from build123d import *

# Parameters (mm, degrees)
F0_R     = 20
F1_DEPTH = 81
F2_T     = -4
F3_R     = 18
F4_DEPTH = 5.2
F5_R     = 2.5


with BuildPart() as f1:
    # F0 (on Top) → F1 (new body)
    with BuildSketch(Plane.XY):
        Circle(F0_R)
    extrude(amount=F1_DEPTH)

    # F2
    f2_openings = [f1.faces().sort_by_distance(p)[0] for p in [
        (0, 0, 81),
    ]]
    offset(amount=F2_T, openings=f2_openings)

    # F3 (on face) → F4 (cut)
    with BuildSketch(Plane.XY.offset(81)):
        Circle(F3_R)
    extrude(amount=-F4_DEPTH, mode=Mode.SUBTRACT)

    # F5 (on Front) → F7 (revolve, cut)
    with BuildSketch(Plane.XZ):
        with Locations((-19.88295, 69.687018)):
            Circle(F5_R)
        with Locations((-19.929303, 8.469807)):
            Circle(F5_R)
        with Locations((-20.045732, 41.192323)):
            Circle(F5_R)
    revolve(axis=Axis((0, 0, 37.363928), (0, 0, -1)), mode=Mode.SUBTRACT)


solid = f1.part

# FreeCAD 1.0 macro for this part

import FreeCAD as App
import Part
import Sketcher
from FreeCAD import Vector


def faces_at(feature, points):
    """Names of the faces that lie closest to the given points."""
    faces = feature.Shape.Faces
    near = lambda p: min(range(len(faces)), key=lambda i: faces[i].distToShape(Part.Vertex(*p))[0])
    return sorted({f"Face{near(p) + 1}" for p in points})

doc = App.newDocument("Part")
body = doc.addObject("PartDesign::Body", "Body")

# Sketch on XY plane
sketch1 = doc.addObject("Sketcher::SketchObject", "Sketch")
body.addObject(sketch1)
sketch1.AttachmentSupport = (doc.XY_Plane, [""])
sketch1.MapMode = "FlatFace"
sketch1.addGeometry(Part.Circle(Vector(0, 0, 0), Vector(0, 0, 1), 20), False)
sketch1.addConstraint(Sketcher.Constraint("Coincident", 0, 3, -1, 1))
sketch1.addConstraint(Sketcher.Constraint("Diameter", 0, 40.0))
pad1 = doc.addObject("PartDesign::Pad", "Pad")
body.addObject(pad1)
pad1.Profile = sketch1
pad1.Length = 81
doc.recompute()

thickness = doc.addObject("PartDesign::Thickness", "Thickness")
body.addObject(thickness)
thickness.Base = (pad1, faces_at(pad1, [(0, 0, 81)]))
thickness.Value = 4
thickness.Reversed = True
thickness.Join = "Arc"

# Sketch on XY plane
sketch2 = doc.addObject("Sketcher::SketchObject", "Sketch001")
body.addObject(sketch2)
sketch2.AttachmentSupport = (doc.XY_Plane, [""])
sketch2.MapMode = "FlatFace"
sketch2.AttachmentOffset = App.Placement(Vector(0, 0, 81), App.Rotation())
sketch2.addGeometry(Part.Circle(Vector(0, 0, 0), Vector(0, 0, 1), 18), False)
sketch2.addConstraint(Sketcher.Constraint("Coincident", 0, 3, -1, 1))
sketch2.addConstraint(Sketcher.Constraint("Diameter", 0, 36.0))
pocket1 = doc.addObject("PartDesign::Pocket", "Pocket")
body.addObject(pocket1)
pocket1.Profile = sketch2
pocket1.Length = 5.2

# Sketch on XZ plane
sketch3 = doc.addObject("Sketcher::SketchObject", "Sketch002")
body.addObject(sketch3)
sketch3.AttachmentSupport = (doc.XZ_Plane, [""])
sketch3.MapMode = "FlatFace"
sketch3.addGeometry(Part.Circle(Vector(-19.9, 69.7, 0), Vector(0, 0, 1), 2.5), False)
sketch3.addGeometry(Part.Circle(Vector(-19.9, 8.5, 0), Vector(0, 0, 1), 2.5), False)
sketch3.addGeometry(Part.Circle(Vector(-20, 41.2, 0), Vector(0, 0, 1), 2.5), False)
sketch3.addConstraint(Sketcher.Constraint("Equal", 0, 1))
sketch3.addConstraint(Sketcher.Constraint("Equal", 1, 2))
sketch3.addConstraint(Sketcher.Constraint("Diameter", 0, 5.0))
sketch3.addConstraint(Sketcher.Constraint("DistanceX", 0, 3, -1, 1, 19.88295))
sketch3.addConstraint(Sketcher.Constraint("DistanceY", 1, 3, 0, 3, 61.217211))
sketch3.addConstraint(Sketcher.Constraint("DistanceX", 2, 3, 0, 3, 0.162782))
sketch3.addConstraint(Sketcher.Constraint("DistanceX", 2, 3, 1, 3, 0.116429))
sketch3.addConstraint(Sketcher.Constraint("DistanceY", -1, 1, 0, 3, 69.687018))
sketch3.addConstraint(Sketcher.Constraint("DistanceY", -1, 1, 2, 3, 41.192323))
groove = doc.addObject("PartDesign::Groove", "Groove")
body.addObject(groove)
groove.Profile = sketch3
groove.ReferenceAxis = (sketch3, ["V_Axis"])
groove.Angle = 360

doc.recompute()
